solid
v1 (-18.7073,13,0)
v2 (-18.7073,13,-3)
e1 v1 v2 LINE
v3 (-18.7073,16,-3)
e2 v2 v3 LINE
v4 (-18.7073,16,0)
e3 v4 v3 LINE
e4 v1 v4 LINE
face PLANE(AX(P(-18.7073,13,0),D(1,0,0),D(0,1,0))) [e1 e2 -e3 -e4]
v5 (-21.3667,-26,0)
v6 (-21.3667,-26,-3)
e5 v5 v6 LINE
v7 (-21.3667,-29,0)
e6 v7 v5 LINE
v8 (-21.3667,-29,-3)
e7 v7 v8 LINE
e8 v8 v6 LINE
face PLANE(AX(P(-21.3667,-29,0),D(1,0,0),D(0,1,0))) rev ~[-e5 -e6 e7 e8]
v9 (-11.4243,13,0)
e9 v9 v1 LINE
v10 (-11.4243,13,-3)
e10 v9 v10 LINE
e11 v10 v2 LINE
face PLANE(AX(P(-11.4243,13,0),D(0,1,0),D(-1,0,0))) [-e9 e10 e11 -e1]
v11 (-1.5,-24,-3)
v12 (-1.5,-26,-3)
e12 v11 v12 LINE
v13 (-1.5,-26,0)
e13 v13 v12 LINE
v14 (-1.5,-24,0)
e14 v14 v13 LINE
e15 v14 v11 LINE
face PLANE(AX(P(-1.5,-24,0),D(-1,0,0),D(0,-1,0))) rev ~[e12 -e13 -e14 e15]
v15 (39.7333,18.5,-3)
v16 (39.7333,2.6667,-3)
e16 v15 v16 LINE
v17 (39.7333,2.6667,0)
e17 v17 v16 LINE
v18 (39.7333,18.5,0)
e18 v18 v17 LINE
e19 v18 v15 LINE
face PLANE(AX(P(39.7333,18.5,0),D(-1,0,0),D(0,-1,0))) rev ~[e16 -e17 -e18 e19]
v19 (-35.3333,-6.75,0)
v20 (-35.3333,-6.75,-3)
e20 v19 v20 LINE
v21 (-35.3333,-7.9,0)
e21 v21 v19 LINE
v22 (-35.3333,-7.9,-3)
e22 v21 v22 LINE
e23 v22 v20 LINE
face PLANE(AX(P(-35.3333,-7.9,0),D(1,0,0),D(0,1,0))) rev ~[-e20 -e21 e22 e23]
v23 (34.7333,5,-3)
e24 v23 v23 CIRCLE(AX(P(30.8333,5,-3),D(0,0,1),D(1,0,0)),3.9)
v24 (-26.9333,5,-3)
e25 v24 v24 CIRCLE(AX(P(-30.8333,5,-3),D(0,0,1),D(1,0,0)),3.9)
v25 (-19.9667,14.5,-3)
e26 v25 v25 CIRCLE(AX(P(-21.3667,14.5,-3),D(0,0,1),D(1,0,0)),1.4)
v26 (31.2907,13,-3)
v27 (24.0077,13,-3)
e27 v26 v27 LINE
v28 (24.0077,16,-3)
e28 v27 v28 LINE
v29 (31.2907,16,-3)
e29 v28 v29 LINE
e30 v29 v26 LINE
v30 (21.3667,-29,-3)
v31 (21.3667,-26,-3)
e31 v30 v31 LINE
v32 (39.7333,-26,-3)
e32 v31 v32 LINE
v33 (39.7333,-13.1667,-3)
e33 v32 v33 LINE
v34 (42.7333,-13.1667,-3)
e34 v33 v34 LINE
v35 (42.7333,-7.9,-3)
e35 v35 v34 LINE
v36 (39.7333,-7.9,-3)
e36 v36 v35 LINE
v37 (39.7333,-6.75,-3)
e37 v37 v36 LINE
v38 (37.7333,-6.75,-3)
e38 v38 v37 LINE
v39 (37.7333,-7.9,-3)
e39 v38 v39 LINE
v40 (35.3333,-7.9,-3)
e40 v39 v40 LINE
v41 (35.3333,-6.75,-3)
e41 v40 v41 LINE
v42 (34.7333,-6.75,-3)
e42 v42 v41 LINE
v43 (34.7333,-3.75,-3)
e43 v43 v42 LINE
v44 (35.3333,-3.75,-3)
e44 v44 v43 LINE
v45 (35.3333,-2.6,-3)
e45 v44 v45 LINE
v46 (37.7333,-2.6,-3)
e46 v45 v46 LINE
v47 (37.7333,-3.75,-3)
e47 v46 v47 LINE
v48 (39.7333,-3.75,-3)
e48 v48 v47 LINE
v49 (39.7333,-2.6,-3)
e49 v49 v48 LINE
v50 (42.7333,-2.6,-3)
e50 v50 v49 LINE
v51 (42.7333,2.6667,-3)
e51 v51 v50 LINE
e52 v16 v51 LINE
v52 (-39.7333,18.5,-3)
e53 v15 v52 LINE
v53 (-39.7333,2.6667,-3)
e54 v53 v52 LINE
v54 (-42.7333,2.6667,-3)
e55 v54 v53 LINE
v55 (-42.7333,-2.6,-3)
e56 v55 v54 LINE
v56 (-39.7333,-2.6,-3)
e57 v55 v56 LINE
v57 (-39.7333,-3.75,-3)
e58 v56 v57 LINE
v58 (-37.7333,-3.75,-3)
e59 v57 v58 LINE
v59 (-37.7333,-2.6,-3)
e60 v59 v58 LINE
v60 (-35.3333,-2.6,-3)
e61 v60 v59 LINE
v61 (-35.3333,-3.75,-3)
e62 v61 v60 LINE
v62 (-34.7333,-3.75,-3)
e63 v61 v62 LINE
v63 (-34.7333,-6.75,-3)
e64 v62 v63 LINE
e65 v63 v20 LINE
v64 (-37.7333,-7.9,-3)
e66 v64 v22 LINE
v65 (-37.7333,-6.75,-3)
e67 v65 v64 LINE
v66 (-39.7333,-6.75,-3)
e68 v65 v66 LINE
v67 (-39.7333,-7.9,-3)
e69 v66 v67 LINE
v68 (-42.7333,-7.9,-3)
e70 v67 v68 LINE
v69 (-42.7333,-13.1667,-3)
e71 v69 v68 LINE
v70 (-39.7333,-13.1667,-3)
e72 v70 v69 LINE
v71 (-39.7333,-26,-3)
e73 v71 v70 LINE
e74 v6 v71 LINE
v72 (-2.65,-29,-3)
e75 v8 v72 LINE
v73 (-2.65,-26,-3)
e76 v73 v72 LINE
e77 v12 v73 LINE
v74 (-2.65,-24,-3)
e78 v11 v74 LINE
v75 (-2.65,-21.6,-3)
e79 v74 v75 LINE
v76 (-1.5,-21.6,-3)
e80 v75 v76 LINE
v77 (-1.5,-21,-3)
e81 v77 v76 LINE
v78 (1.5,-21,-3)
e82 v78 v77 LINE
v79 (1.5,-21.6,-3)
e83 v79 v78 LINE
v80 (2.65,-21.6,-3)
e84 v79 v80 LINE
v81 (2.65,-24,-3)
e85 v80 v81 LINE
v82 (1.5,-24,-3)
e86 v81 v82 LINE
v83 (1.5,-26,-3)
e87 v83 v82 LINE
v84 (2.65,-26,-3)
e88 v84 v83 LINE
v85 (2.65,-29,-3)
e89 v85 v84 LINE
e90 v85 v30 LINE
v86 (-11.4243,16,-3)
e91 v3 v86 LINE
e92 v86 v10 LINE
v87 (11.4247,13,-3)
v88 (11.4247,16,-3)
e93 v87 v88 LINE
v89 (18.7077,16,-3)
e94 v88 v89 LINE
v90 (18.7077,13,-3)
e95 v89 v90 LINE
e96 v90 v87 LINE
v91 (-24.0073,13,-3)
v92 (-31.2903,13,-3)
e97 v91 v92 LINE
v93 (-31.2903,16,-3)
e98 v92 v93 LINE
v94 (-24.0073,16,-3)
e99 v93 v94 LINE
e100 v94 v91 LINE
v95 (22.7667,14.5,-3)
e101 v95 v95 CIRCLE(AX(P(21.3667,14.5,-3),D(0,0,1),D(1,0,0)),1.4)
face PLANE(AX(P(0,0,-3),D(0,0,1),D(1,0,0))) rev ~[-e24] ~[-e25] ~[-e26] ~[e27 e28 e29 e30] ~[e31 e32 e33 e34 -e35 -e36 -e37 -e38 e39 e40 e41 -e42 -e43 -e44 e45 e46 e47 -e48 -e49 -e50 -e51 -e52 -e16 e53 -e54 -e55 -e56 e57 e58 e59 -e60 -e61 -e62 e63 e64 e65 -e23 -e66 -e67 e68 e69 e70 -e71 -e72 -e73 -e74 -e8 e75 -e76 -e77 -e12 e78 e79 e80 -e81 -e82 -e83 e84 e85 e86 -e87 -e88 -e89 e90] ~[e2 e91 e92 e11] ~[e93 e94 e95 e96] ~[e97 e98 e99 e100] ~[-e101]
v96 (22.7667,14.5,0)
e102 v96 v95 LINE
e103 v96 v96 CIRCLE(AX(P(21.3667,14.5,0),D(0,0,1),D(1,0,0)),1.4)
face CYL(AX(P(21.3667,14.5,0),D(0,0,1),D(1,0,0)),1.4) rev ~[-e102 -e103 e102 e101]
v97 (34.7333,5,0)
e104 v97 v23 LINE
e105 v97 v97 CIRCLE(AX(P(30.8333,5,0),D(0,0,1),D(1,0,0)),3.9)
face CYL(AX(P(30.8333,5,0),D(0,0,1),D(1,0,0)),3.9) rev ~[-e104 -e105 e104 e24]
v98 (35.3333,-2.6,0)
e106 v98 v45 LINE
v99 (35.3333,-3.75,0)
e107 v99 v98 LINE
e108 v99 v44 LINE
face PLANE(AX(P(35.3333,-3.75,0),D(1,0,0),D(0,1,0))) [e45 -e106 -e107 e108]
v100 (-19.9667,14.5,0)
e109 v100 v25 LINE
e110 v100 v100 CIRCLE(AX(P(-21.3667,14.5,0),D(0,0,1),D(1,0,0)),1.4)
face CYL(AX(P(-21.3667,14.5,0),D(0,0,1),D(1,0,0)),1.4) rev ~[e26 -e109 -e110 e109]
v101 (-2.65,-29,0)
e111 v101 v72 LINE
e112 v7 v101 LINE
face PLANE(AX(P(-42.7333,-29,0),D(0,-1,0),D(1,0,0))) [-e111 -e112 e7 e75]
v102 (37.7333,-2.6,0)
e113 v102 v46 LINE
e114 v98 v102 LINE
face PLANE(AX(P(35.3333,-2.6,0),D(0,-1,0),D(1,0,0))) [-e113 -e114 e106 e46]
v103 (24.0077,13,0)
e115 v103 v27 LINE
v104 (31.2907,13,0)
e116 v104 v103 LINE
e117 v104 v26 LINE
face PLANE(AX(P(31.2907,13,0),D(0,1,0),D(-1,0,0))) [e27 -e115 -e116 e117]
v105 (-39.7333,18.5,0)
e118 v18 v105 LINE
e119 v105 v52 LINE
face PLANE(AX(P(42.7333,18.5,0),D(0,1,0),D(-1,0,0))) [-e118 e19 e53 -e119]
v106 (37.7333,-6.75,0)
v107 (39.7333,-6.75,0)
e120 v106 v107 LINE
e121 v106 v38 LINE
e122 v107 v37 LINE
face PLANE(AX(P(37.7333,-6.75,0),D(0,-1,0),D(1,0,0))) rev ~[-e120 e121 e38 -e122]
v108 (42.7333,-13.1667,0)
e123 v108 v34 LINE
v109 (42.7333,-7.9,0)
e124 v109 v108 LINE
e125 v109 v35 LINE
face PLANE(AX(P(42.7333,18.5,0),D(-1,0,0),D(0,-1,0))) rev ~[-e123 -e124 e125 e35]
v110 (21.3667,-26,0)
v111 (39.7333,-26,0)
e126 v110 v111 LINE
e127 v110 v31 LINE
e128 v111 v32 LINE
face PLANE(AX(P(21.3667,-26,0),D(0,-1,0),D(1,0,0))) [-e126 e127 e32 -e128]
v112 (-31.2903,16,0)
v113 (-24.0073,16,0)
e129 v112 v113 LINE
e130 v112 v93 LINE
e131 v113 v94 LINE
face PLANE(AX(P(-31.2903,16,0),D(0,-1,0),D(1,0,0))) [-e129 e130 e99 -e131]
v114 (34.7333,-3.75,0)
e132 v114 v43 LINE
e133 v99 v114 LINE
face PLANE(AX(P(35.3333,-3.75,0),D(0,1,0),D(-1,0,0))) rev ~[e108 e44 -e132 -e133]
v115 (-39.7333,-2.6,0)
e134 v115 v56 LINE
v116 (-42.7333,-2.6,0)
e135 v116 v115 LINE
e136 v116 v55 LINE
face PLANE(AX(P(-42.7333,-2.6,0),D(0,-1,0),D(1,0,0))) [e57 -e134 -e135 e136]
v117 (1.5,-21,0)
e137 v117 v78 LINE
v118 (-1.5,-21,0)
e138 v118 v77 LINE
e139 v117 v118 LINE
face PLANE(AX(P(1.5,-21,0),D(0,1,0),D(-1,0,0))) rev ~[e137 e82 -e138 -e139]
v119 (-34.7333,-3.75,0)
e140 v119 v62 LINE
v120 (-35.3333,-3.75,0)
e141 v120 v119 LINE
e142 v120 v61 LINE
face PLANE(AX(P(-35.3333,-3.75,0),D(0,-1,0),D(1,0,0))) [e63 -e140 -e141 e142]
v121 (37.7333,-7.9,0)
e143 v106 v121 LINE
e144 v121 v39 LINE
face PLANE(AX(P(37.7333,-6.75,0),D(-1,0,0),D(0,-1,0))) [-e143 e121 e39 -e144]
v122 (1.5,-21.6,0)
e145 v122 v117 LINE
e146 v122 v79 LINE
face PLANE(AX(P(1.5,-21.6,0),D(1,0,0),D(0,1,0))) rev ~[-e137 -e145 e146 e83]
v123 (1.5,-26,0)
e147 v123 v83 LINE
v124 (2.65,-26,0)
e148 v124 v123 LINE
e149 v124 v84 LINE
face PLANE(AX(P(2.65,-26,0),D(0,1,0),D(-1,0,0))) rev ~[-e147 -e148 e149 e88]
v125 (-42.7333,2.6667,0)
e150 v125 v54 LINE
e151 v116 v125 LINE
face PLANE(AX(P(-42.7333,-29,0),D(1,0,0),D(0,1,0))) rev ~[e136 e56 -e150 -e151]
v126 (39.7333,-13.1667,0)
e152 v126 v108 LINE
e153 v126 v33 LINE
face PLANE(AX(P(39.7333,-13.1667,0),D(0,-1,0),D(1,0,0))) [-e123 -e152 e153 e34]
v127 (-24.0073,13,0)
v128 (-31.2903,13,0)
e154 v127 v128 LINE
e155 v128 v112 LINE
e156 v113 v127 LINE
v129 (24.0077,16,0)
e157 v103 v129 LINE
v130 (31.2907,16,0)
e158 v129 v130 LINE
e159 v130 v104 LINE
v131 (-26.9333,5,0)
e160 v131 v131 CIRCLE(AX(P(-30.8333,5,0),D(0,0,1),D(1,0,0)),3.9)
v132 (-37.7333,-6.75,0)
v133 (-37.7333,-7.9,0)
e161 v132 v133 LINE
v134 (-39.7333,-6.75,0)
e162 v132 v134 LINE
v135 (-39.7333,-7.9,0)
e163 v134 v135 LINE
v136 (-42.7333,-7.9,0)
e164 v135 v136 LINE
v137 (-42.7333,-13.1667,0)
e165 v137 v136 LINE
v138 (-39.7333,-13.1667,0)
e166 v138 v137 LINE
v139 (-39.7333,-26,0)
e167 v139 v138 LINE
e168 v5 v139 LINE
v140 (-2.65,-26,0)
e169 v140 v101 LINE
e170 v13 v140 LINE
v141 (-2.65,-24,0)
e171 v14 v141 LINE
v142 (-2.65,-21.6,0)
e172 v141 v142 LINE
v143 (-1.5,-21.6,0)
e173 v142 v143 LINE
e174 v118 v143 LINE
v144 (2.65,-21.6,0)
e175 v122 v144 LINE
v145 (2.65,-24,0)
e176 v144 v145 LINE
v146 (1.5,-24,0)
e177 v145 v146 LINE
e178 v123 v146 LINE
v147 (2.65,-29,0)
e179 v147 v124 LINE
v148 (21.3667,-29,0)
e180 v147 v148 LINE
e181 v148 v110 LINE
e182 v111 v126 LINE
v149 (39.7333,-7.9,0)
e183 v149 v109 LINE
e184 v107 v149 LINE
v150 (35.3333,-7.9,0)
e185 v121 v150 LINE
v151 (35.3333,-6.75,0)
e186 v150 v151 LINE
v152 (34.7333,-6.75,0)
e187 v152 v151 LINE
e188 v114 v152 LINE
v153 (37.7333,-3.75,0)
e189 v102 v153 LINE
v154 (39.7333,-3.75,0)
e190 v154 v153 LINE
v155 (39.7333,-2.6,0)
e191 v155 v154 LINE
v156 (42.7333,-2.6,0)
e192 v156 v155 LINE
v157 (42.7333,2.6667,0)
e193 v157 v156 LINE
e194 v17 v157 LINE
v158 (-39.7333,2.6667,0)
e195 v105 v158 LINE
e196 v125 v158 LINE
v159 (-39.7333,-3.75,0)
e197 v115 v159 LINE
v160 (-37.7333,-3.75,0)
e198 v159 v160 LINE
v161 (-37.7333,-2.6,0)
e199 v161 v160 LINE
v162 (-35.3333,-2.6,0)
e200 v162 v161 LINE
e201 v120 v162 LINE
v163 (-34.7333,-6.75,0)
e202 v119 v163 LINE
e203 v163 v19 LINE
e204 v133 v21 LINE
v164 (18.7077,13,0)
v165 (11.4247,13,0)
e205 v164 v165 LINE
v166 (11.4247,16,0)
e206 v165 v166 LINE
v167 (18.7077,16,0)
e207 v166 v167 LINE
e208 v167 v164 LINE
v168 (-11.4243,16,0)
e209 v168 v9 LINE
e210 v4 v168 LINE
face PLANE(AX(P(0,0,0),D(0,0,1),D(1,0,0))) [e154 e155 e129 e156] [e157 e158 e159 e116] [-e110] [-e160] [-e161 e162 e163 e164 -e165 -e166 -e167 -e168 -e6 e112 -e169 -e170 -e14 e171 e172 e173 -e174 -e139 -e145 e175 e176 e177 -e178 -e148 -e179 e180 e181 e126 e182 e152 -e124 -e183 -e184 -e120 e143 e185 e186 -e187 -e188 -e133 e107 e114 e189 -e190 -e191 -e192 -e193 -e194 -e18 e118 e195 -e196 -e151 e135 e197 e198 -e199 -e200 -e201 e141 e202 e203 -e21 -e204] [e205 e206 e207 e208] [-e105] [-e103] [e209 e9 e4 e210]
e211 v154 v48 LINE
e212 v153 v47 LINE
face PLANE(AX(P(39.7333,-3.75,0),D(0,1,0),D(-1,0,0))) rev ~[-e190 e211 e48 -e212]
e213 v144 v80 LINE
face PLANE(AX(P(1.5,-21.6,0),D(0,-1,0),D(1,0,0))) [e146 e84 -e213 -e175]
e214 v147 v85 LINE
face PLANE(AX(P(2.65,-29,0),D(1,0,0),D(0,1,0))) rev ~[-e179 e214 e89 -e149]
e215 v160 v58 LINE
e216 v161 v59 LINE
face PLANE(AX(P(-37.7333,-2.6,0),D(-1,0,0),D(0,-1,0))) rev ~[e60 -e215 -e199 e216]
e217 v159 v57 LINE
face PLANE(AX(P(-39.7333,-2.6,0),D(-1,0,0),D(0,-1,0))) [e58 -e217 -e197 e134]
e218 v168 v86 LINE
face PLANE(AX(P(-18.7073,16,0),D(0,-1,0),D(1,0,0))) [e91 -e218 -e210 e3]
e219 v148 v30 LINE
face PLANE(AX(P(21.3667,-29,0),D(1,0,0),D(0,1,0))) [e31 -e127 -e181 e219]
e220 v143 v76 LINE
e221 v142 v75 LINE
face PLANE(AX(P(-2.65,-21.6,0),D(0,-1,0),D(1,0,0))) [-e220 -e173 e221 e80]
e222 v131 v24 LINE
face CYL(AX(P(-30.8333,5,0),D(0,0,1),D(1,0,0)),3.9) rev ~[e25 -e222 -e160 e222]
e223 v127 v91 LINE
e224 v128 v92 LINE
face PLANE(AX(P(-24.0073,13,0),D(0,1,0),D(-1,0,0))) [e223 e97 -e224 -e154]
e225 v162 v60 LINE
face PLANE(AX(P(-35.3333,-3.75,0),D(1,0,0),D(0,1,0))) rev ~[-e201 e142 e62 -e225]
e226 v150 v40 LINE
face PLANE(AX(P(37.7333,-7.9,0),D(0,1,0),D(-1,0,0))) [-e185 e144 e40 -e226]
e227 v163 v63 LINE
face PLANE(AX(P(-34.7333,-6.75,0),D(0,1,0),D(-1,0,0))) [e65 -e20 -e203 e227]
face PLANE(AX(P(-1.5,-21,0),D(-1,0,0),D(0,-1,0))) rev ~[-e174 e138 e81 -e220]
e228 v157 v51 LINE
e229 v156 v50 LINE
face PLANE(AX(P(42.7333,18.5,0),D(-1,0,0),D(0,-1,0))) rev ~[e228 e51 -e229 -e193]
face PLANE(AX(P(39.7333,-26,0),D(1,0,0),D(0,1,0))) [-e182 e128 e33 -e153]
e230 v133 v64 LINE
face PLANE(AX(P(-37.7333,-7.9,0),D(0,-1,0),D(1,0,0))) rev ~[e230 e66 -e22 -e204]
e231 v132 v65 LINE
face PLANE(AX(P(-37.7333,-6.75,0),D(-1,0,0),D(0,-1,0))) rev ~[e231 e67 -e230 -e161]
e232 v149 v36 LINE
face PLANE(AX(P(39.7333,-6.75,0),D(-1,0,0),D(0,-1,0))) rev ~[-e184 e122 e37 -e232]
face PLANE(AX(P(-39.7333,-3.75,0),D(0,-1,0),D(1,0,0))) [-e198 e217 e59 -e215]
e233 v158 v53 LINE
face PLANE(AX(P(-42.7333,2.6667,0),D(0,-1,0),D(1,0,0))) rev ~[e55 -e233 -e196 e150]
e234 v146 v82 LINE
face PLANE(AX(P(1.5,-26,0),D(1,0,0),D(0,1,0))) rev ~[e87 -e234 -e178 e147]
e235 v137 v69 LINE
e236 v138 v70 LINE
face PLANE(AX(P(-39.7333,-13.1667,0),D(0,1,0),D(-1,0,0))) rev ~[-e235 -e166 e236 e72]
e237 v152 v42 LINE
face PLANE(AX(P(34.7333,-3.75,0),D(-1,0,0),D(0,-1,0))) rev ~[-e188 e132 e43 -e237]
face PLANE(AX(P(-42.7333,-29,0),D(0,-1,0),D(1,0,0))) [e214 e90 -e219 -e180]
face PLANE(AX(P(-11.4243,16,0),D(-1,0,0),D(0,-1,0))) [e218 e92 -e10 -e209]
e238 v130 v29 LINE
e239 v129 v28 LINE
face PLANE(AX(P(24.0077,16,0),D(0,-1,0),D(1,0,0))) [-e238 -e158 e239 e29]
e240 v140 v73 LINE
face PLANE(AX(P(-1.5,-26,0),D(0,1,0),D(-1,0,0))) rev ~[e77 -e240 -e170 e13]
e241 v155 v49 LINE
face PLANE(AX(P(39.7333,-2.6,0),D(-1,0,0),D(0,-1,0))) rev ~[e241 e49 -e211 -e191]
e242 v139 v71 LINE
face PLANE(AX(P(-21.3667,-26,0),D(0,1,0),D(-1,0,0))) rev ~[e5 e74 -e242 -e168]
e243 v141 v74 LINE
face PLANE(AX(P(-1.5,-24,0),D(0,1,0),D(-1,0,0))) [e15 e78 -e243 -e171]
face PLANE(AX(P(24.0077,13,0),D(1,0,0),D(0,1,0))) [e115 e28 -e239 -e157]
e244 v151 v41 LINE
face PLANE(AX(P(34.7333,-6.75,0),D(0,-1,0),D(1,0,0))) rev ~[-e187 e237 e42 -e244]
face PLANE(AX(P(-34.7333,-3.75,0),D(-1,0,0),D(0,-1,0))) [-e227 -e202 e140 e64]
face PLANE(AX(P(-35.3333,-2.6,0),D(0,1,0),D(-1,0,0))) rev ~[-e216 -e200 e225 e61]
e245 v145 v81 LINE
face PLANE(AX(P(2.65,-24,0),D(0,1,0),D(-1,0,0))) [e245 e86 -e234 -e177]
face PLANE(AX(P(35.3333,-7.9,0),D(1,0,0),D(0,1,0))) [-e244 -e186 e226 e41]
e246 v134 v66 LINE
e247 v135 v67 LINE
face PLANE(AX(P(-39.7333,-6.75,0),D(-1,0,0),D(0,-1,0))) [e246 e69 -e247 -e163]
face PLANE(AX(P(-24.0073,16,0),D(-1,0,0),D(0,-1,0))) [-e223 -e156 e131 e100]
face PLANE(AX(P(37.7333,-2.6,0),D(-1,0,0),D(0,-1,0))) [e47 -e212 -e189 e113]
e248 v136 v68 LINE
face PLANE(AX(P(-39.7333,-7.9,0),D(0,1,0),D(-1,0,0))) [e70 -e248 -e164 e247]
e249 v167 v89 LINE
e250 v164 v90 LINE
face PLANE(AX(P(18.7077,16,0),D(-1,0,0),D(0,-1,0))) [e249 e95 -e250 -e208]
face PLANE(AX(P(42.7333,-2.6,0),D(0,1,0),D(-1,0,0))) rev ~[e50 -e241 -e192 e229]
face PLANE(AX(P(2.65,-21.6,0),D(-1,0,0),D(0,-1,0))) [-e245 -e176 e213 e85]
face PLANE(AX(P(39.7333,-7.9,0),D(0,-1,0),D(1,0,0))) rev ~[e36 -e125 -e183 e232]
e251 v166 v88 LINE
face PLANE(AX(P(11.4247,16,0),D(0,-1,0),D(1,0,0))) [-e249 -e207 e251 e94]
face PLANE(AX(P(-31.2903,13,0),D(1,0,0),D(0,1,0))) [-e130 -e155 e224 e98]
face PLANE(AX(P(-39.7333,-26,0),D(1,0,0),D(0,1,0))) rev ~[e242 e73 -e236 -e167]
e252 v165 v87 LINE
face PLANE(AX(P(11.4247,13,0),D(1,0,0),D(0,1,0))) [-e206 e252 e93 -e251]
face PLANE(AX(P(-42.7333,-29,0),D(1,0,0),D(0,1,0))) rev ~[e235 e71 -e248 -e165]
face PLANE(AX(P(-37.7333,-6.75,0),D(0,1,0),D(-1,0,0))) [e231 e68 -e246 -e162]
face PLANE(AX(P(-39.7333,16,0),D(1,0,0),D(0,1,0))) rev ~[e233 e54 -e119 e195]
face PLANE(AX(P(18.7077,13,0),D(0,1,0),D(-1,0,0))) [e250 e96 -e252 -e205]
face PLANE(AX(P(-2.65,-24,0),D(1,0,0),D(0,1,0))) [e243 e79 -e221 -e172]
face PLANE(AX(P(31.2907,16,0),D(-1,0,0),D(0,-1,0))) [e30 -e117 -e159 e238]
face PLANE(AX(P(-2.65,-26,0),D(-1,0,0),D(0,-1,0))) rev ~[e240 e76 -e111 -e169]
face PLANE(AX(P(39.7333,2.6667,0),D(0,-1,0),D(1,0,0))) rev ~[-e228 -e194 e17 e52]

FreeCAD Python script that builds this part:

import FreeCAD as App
import Part
import Sketcher

doc = App.newDocument("Part")
body = doc.addObject("PartDesign::Body", "Body")

# Sketch on XY plane
sketch1 = body.newObject("Sketcher::SketchObject", "Sketch")
sketch1.AttachmentSupport = (doc.getObject("XY_Plane"), [""])
sketch1.MapMode = "FlatFace"
sketch1.addGeometry([
    Part.LineSegment(App.Vector(42.7, -29, 0), App.Vector(42.7, 18.5, 0)),  # 0
    Part.LineSegment(App.Vector(42.7, 18.5, 0), App.Vector(-42.7, 18.5, 0)),  # 1
    Part.LineSegment(App.Vector(-42.7, 18.5, 0), App.Vector(-42.7, -29, 0)),  # 2
    Part.LineSegment(App.Vector(-42.7, -29, 0), App.Vector(42.7, -29, 0)),  # 3
    Part.Circle(App.Vector(-30.8, 5, 0), App.Vector(0, 0, 1), 3.9),  # 4
    Part.Circle(App.Vector(30.8, 5, 0), App.Vector(0, 0, 1), 3.9),  # 5
], False)
sketch1.addConstraint([
    Sketcher.Constraint("Coincident", 0, 2, 1, 1),
    Sketcher.Constraint("Coincident", 1, 2, 2, 1),
    Sketcher.Constraint("Coincident", 2, 2, 3, 1),
    Sketcher.Constraint("Coincident", 3, 2, 0, 1),
    Sketcher.Constraint("Vertical", 0),
    Sketcher.Constraint("Horizontal", 1),
    Sketcher.Constraint("Vertical", 2),
    Sketcher.Constraint("Horizontal", 3),
    Sketcher.Constraint("Equal", 4, 5),
    Sketcher.Constraint("Symmetric", 4, 3, 5, 3, -2),
    Sketcher.Constraint("Diameter", 4, 7.8),
    Sketcher.Constraint("DistanceY", 0, 1, 0, 2, 47.5),
    Sketcher.Constraint("DistanceY", 2, 2, 4, 3, 34.0),
    Sketcher.Constraint("DistanceX", 1, 2, 1, 1, 85.4666),
    Sketcher.Constraint("DistanceY", -1, 1, 4, 3, 5.0),
    Sketcher.Constraint("DistanceX", 4, 3, -1, 1, 30.8333),
    Sketcher.Constraint("DistanceX", 5, 3, 0, 2, 11.9),
])
pad1 = body.newObject("PartDesign::Pad", "Pad")
pad1.Profile = sketch1
pad1.Length = 3
pad1.Reversed = True

# Sketch on XY plane
sketch2 = body.newObject("Sketcher::SketchObject", "Sketch001")
sketch2.AttachmentSupport = (doc.getObject("XY_Plane"), [""])
sketch2.MapMode = "FlatFace"
sketch2.addGeometry([
    Part.LineSegment(App.Vector(42.7, 18.5, 0), App.Vector(39.7, 18.5, 0)),  # 0
    Part.LineSegment(App.Vector(39.7, 18.5, 0), App.Vector(39.7, 2.7, 0)),  # 1
    Part.LineSegment(App.Vector(39.7, 2.7, 0), App.Vector(42.7, 2.7, 0)),  # 2
    Part.LineSegment(App.Vector(42.7, 2.7, 0), App.Vector(42.7, 18.5, 0)),  # 3
    Part.LineSegment(App.Vector(-39.7, 18.5, 0), App.Vector(-42.7, 18.5, 0)),  # 4
    Part.LineSegment(App.Vector(-42.7, 18.5, 0), App.Vector(-42.7, 2.7, 0)),  # 5
    Part.LineSegment(App.Vector(-42.7, 2.7, 0), App.Vector(-39.7, 2.7, 0)),  # 6
    Part.LineSegment(App.Vector(-39.7, 2.7, 0), App.Vector(-39.7, 18.5, 0)),  # 7
    Part.LineSegment(App.Vector(31.3, 13, 0), App.Vector(31.3, 16, 0)),  # 8
    Part.LineSegment(App.Vector(31.3, 16, 0), App.Vector(24, 16, 0)),  # 9
    Part.LineSegment(App.Vector(24, 16, 0), App.Vector(24, 13, 0)),  # 10
    Part.LineSegment(App.Vector(24, 13, 0), App.Vector(31.3, 13, 0)),  # 11
    Part.LineSegment(App.Vector(-24, 16, 0), App.Vector(-31.3, 16, 0)),  # 12
    Part.LineSegment(App.Vector(-31.3, 16, 0), App.Vector(-31.3, 13, 0)),  # 13
    Part.LineSegment(App.Vector(-31.3, 13, 0), App.Vector(-24, 13, 0)),  # 14
    Part.LineSegment(App.Vector(-24, 13, 0), App.Vector(-24, 16, 0)),  # 15
    Part.LineSegment(App.Vector(42.7, -2.6, 0), App.Vector(39.7, -2.6, 0)),  # 16
    Part.LineSegment(App.Vector(39.7, -2.6, 0), App.Vector(39.7, -3.8, 0)),  # 17
    Part.LineSegment(App.Vector(39.7, -3.8, 0), App.Vector(37.7, -3.8, 0)),  # 18
    Part.LineSegment(App.Vector(37.7, -3.8, 0), App.Vector(37.7, -2.6, 0)),  # 19
    Part.LineSegment(App.Vector(37.7, -2.6, 0), App.Vector(35.3, -2.6, 0)),  # 20
    Part.LineSegment(App.Vector(35.3, -2.6, 0), App.Vector(35.3, -3.8, 0)),  # 21
    Part.LineSegment(App.Vector(35.3, -3.8, 0), App.Vector(34.7, -3.8, 0)),  # 22
    Part.LineSegment(App.Vector(34.7, -3.8, 0), App.Vector(34.7, -6.8, 0)),  # 23
    Part.LineSegment(App.Vector(34.7, -6.8, 0), App.Vector(35.3, -6.8, 0)),  # 24
    Part.LineSegment(App.Vector(35.3, -6.8, 0), App.Vector(35.3, -7.9, 0)),  # 25
    Part.LineSegment(App.Vector(35.3, -7.9, 0), App.Vector(37.7, -7.9, 0)),  # 26
    Part.LineSegment(App.Vector(37.7, -7.9, 0), App.Vector(37.7, -6.8, 0)),  # 27
    Part.LineSegment(App.Vector(37.7, -6.8, 0), App.Vector(39.7, -6.8, 0)),  # 28
    Part.LineSegment(App.Vector(39.7, -6.8, 0), App.Vector(39.7, -7.9, 0)),  # 29
    Part.LineSegment(App.Vector(39.7, -7.9, 0), App.Vector(42.7, -7.9, 0)),  # 30
    Part.LineSegment(App.Vector(42.7, -7.9, 0), App.Vector(42.7, -2.6, 0)),  # 31
    Part.LineSegment(App.Vector(-39.7, -2.6, 0), App.Vector(-42.7, -2.6, 0)),  # 32
    Part.LineSegment(App.Vector(-42.7, -2.6, 0), App.Vector(-42.7, -7.9, 0)),  # 33
    Part.LineSegment(App.Vector(-42.7, -7.9, 0), App.Vector(-39.7, -7.9, 0)),  # 34
    Part.LineSegment(App.Vector(-39.7, -7.9, 0), App.Vector(-39.7, -6.8, 0)),  # 35
    Part.LineSegment(App.Vector(-39.7, -6.8, 0), App.Vector(-37.7, -6.8, 0)),  # 36
    Part.LineSegment(App.Vector(-37.7, -6.8, 0), App.Vector(-37.7, -7.9, 0)),  # 37
    Part.LineSegment(App.Vector(-37.7, -7.9, 0), App.Vector(-35.3, -7.9, 0)),  # 38
    Part.LineSegment(App.Vector(-35.3, -7.9, 0), App.Vector(-35.3, -6.8, 0)),  # 39
    Part.LineSegment(App.Vector(-35.3, -6.8, 0), App.Vector(-34.7, -6.8, 0)),  # 40
    Part.LineSegment(App.Vector(-34.7, -6.8, 0), App.Vector(-34.7, -3.8, 0)),  # 41
    Part.LineSegment(App.Vector(-34.7, -3.8, 0), App.Vector(-35.3, -3.8, 0)),  # 42
    Part.LineSegment(App.Vector(-35.3, -3.8, 0), App.Vector(-35.3, -2.6, 0)),  # 43
    Part.LineSegment(App.Vector(-35.3, -2.6, 0), App.Vector(-37.7, -2.6, 0)),  # 44
    Part.LineSegment(App.Vector(-37.7, -2.6, 0), App.Vector(-37.7, -3.8, 0)),  # 45
    Part.LineSegment(App.Vector(-37.7, -3.8, 0), App.Vector(-39.7, -3.8, 0)),  # 46
    Part.LineSegment(App.Vector(-39.7, -3.8, 0), App.Vector(-39.7, -2.6, 0)),  # 47
    Part.LineSegment(App.Vector(42.7, -29, 0), App.Vector(42.7, -13.2, 0)),  # 48
    Part.LineSegment(App.Vector(42.7, -13.2, 0), App.Vector(39.7, -13.2, 0)),  # 49
    Part.LineSegment(App.Vector(39.7, -13.2, 0), App.Vector(39.7, -26, 0)),  # 50
    Part.LineSegment(App.Vector(39.7, -26, 0), App.Vector(21.4, -26, 0)),  # 51
    Part.LineSegment(App.Vector(21.4, -26, 0), App.Vector(21.4, -29, 0)),  # 52
    Part.LineSegment(App.Vector(21.4, -29, 0), App.Vector(42.7, -29, 0)),  # 53
    Part.LineSegment(App.Vector(-39.7, -13.2, 0), App.Vector(-42.7, -13.2, 0)),  # 54
    Part.LineSegment(App.Vector(-42.7, -13.2, 0), App.Vector(-42.7, -29, 0)),  # 55
    Part.LineSegment(App.Vector(-42.7, -29, 0), App.Vector(-21.4, -29, 0)),  # 56
    Part.LineSegment(App.Vector(-21.4, -29, 0), App.Vector(-21.4, -26, 0)),  # 57
    Part.LineSegment(App.Vector(-21.4, -26, 0), App.Vector(-39.7, -26, 0)),  # 58
    Part.LineSegment(App.Vector(-39.7, -26, 0), App.Vector(-39.7, -13.2, 0)),  # 59
    Part.LineSegment(App.Vector(2.6, -29, 0), App.Vector(2.6, -26, 0)),  # 60
    Part.LineSegment(App.Vector(2.6, -26, 0), App.Vector(1.5, -26, 0)),  # 61
    Part.LineSegment(App.Vector(1.5, -26, 0), App.Vector(1.5, -24, 0)),  # 62
    Part.LineSegment(App.Vector(1.5, -24, 0), App.Vector(2.6, -24, 0)),  # 63
    Part.LineSegment(App.Vector(2.6, -24, 0), App.Vector(2.6, -21.6, 0)),  # 64
    Part.LineSegment(App.Vector(2.6, -21.6, 0), App.Vector(1.5, -21.6, 0)),  # 65
    Part.LineSegment(App.Vector(1.5, -21.6, 0), App.Vector(1.5, -21, 0)),  # 66
    Part.LineSegment(App.Vector(1.5, -21, 0), App.Vector(-1.5, -21, 0)),  # 67
    Part.LineSegment(App.Vector(-1.5, -21, 0), App.Vector(-1.5, -21.6, 0)),  # 68
    Part.LineSegment(App.Vector(-1.5, -21.6, 0), App.Vector(-2.6, -21.6, 0)),  # 69
    Part.LineSegment(App.Vector(-2.6, -21.6, 0), App.Vector(-2.6, -24, 0)),  # 70
    Part.LineSegment(App.Vector(-2.6, -24, 0), App.Vector(-1.5, -24, 0)),  # 71
    Part.LineSegment(App.Vector(-1.5, -24, 0), App.Vector(-1.5, -26, 0)),  # 72
    Part.LineSegment(App.Vector(-1.5, -26, 0), App.Vector(-2.6, -26, 0)),  # 73
    Part.LineSegment(App.Vector(-2.6, -26, 0), App.Vector(-2.6, -29, 0)),  # 74
    Part.LineSegment(App.Vector(-2.6, -29, 0), App.Vector(2.6, -29, 0)),  # 75
    Part.Circle(App.Vector(21.4, 14.5, 0), App.Vector(0, 0, 1), 1.4),  # 76
    Part.Circle(App.Vector(-21.4, 14.5, 0), App.Vector(0, 0, 1), 1.4),  # 77
    Part.LineSegment(App.Vector(18.7, 13, 0), App.Vector(18.7, 16, 0)),  # 78
    Part.LineSegment(App.Vector(18.7, 16, 0), App.Vector(11.4, 16, 0)),  # 79
    Part.LineSegment(App.Vector(11.4, 16, 0), App.Vector(11.4, 13, 0)),  # 80
    Part.LineSegment(App.Vector(11.4, 13, 0), App.Vector(18.7, 13, 0)),  # 81
    Part.LineSegment(App.Vector(-11.4, 13, 0), App.Vector(-11.4, 16, 0)),  # 82
    Part.LineSegment(App.Vector(-11.4, 16, 0), App.Vector(-18.7, 16, 0)),  # 83
    Part.LineSegment(App.Vector(-18.7, 16, 0), App.Vector(-18.7, 13, 0)),  # 84
    Part.LineSegment(App.Vector(-18.7, 13, 0), App.Vector(-11.4, 13, 0)),  # 85
], False)
sketch2.addConstraint([
    Sketcher.Constraint("Coincident", 0, 2, 1, 1),
    Sketcher.Constraint("Coincident", 1, 2, 2, 1),
    Sketcher.Constraint("Coincident", 2, 2, 3, 1),
    Sketcher.Constraint("Coincident", 3, 2, 0, 1),
    Sketcher.Constraint("Coincident", 4, 2, 5, 1),
    Sketcher.Constraint("Coincident", 5, 2, 6, 1),
    Sketcher.Constraint("Coincident", 6, 2, 7, 1),
    Sketcher.Constraint("Coincident", 7, 2, 4, 1),
    Sketcher.Constraint("Coincident", 8, 2, 9, 1),
    Sketcher.Constraint("Coincident", 9, 2, 10, 1),
    Sketcher.Constraint("Coincident", 10, 2, 11, 1),
    Sketcher.Constraint("Coincident", 11, 2, 8, 1),
    Sketcher.Constraint("Coincident", 12, 2, 13, 1),
    Sketcher.Constraint("Coincident", 13, 2, 14, 1),
    Sketcher.Constraint("Coincident", 14, 2, 15, 1),
    Sketcher.Constraint("Coincident", 15, 2, 12, 1),
    Sketcher.Constraint("Coincident", 16, 2, 17, 1),
    Sketcher.Constraint("Coincident", 17, 2, 18, 1),
    Sketcher.Constraint("Coincident", 18, 2, 19, 1),
    Sketcher.Constraint("Coincident", 19, 2, 20, 1),
    Sketcher.Constraint("Coincident", 20, 2, 21, 1),
    Sketcher.Constraint("Coincident", 21, 2, 22, 1),
    Sketcher.Constraint("Coincident", 22, 2, 23, 1),
    Sketcher.Constraint("Coincident", 23, 2, 24, 1),
    Sketcher.Constraint("Coincident", 24, 2, 25, 1),
    Sketcher.Constraint("Coincident", 25, 2, 26, 1),
    Sketcher.Constraint("Coincident", 26, 2, 27, 1),
    Sketcher.Constraint("Coincident", 27, 2, 28, 1),
    Sketcher.Constraint("Coincident", 28, 2, 29, 1),
    Sketcher.Constraint("Coincident", 29, 2, 30, 1),
    Sketcher.Constraint("Coincident", 30, 2, 31, 1),
    Sketcher.Constraint("Coincident", 31, 2, 16, 1),
    Sketcher.Constraint("Coincident", 32, 2, 33, 1),
    Sketcher.Constraint("Coincident", 33, 2, 34, 1),
    Sketcher.Constraint("Coincident", 34, 2, 35, 1),
    Sketcher.Constraint("Coincident", 35, 2, 36, 1),
    Sketcher.Constraint("Coincident", 36, 2, 37, 1),
    Sketcher.Constraint("Coincident", 37, 2, 38, 1),
    Sketcher.Constraint("Coincident", 38, 2, 39, 1),
    Sketcher.Constraint("Coincident", 39, 2, 40, 1),
    Sketcher.Constraint("Coincident", 40, 2, 41, 1),
    Sketcher.Constraint("Coincident", 41, 2, 42, 1),
    Sketcher.Constraint("Coincident", 42, 2, 43, 1),
    Sketcher.Constraint("Coincident", 43, 2, 44, 1),
    Sketcher.Constraint("Coincident", 44, 2, 45, 1),
    Sketcher.Constraint("Coincident", 45, 2, 46, 1),
    Sketcher.Constraint("Coincident", 46, 2, 47, 1),
    Sketcher.Constraint("Coincident", 47, 2, 32, 1),
    Sketcher.Constraint("Coincident", 48, 2, 49, 1),
    Sketcher.Constraint("Coincident", 49, 2, 50, 1),
    Sketcher.Constraint("Coincident", 50, 2, 51, 1),
    Sketcher.Constraint("Coincident", 51, 2, 52, 1),
    Sketcher.Constraint("Coincident", 52, 2, 53, 1),
    Sketcher.Constraint("Coincident", 53, 2, 48, 1),
    Sketcher.Constraint("Coincident", 54, 2, 55, 1),
    Sketcher.Constraint("Coincident", 55, 2, 56, 1),
    Sketcher.Constraint("Coincident", 56, 2, 57, 1),
    Sketcher.Constraint("Coincident", 57, 2, 58, 1),
    Sketcher.Constraint("Coincident", 58, 2, 59, 1),
    Sketcher.Constraint("Coincident", 59, 2, 54, 1),
    Sketcher.Constraint("Coincident", 60, 2, 61, 1),
    Sketcher.Constraint("Coincident", 61, 2, 62, 1),
    Sketcher.Constraint("Coincident", 62, 2, 63, 1),
    Sketcher.Constraint("Coincident", 63, 2, 64, 1),
    Sketcher.Constraint("Coincident", 64, 2, 65, 1),
    Sketcher.Constraint("Coincident", 65, 2, 66, 1),
    Sketcher.Constraint("Coincident", 66, 2, 67, 1),
    Sketcher.Constraint("Coincident", 67, 2, 68, 1),
    Sketcher.Constraint("Coincident", 68, 2, 69, 1),
    Sketcher.Constraint("Coincident", 69, 2, 70, 1),
    Sketcher.Constraint("Coincident", 70, 2, 71, 1),
    Sketcher.Constraint("Coincident", 71, 2, 72, 1),
    Sketcher.Constraint("Coincident", 72, 2, 73, 1),
    Sketcher.Constraint("Coincident", 73, 2, 74, 1),
    Sketcher.Constraint("Coincident", 74, 2, 75, 1),
    Sketcher.Constraint("Coincident", 75, 2, 60, 1),
    Sketcher.Constraint("Coincident", 78, 2, 79, 1),
    Sketcher.Constraint("Coincident", 79, 2, 80, 1),
    Sketcher.Constraint("Coincident", 80, 2, 81, 1),
    Sketcher.Constraint("Coincident", 81, 2, 78, 1),
    Sketcher.Constraint("Coincident", 82, 2, 83, 1),
    Sketcher.Constraint("Coincident", 83, 2, 84, 1),
    Sketcher.Constraint("Coincident", 84, 2, 85, 1),
    Sketcher.Constraint("Coincident", 85, 2, 82, 1),
    Sketcher.Constraint("Horizontal", 0),
    Sketcher.Constraint("Vertical", 1),
    Sketcher.Constraint("Horizontal", 2),
    Sketcher.Constraint("Vertical", 3),
    Sketcher.Constraint("Horizontal", 4),
    Sketcher.Constraint("Vertical", 5),
    Sketcher.Constraint("Horizontal", 6),
    Sketcher.Constraint("Vertical", 7),
    Sketcher.Constraint("Vertical", 8),
    Sketcher.Constraint("Horizontal", 9),
    Sketcher.Constraint("Vertical", 10),
    Sketcher.Constraint("Horizontal", 11),
    Sketcher.Constraint("Horizontal", 12),
    Sketcher.Constraint("Vertical", 13),
    Sketcher.Constraint("Horizontal", 14),
    Sketcher.Constraint("Vertical", 15),
    Sketcher.Constraint("Horizontal", 16),
    Sketcher.Constraint("Vertical", 17),
    Sketcher.Constraint("Horizontal", 18),
    Sketcher.Constraint("Vertical", 19),
    Sketcher.Constraint("Horizontal", 20),
    Sketcher.Constraint("Vertical", 21),
    Sketcher.Constraint("Horizontal", 22),
    Sketcher.Constraint("Vertical", 23),
    Sketcher.Constraint("Horizontal", 24),
    Sketcher.Constraint("Vertical", 25),
    Sketcher.Constraint("Horizontal", 26),
    Sketcher.Constraint("Vertical", 27),
    Sketcher.Constraint("Horizontal", 28),
    Sketcher.Constraint("Vertical", 29),
    Sketcher.Constraint("Horizontal", 30),
    Sketcher.Constraint("Vertical", 31),
    Sketcher.Constraint("Horizontal", 32),
    Sketcher.Constraint("Vertical", 33),
    Sketcher.Constraint("Horizontal", 34),
    Sketcher.Constraint("Vertical", 35),
    Sketcher.Constraint("Horizontal", 36),
    Sketcher.Constraint("Vertical", 37),
    Sketcher.Constraint("Horizontal", 38),
    Sketcher.Constraint("Vertical", 39),
    Sketcher.Constraint("Horizontal", 40),
    Sketcher.Constraint("Vertical", 41),
    Sketcher.Constraint("Horizontal", 42),
    Sketcher.Constraint("Vertical", 43),
    Sketcher.Constraint("Horizontal", 44),
    Sketcher.Constraint("Vertical", 45),
    Sketcher.Constraint("Horizontal", 46),
    Sketcher.Constraint("Vertical", 47),
    Sketcher.Constraint("Vertical", 48),
    Sketcher.Constraint("Horizontal", 49),
    Sketcher.Constraint("Vertical", 50),
    Sketcher.Constraint("Horizontal", 51),
    Sketcher.Constraint("Vertical", 52),
    Sketcher.Constraint("Horizontal", 53),
    Sketcher.Constraint("Horizontal", 54),
    Sketcher.Constraint("Vertical", 55),
    Sketcher.Constraint("Horizontal", 56),
    Sketcher.Constraint("Vertical", 57),
    Sketcher.Constraint("Horizontal", 58),
    Sketcher.Constraint("Vertical", 59),
    Sketcher.Constraint("Vertical", 60),
    Sketcher.Constraint("Horizontal", 61),
    Sketcher.Constraint("Vertical", 62),
    Sketcher.Constraint("Horizontal", 63),
    Sketcher.Constraint("Vertical", 64),
    Sketcher.Constraint("Horizontal", 65),
    Sketcher.Constraint("Vertical", 66),
    Sketcher.Constraint("Horizontal", 67),
    Sketcher.Constraint("Vertical", 68),
    Sketcher.Constraint("Horizontal", 69),
    Sketcher.Constraint("Vertical", 70),
    Sketcher.Constraint("Horizontal", 71),
    Sketcher.Constraint("Vertical", 72),
    Sketcher.Constraint("Horizontal", 73),
    Sketcher.Constraint("Vertical", 74),
    Sketcher.Constraint("Horizontal", 75),
    Sketcher.Constraint("Vertical", 78),
    Sketcher.Constraint("Horizontal", 79),
    Sketcher.Constraint("Vertical", 80),
    Sketcher.Constraint("Horizontal", 81),
    Sketcher.Constraint("Vertical", 82),
    Sketcher.Constraint("Horizontal", 83),
    Sketcher.Constraint("Vertical", 84),
    Sketcher.Constraint("Horizontal", 85),
    Sketcher.Constraint("Equal", 76, 77),
    Sketcher.Constraint("Symmetric", 76, 3, 77, 3, -2),
    Sketcher.Constraint("Symmetric", 3, 2, 4, 2, -2),
    Sketcher.Constraint("Symmetric", 1, 2, 6, 2, -2),
    Sketcher.Constraint("Symmetric", 10, 2, 14, 2, -2),
    Sketcher.Constraint("Symmetric", 31, 2, 32, 2, -2),
    Sketcher.Constraint("Symmetric", 29, 2, 34, 2, -2),
    Sketcher.Constraint("Symmetric", 27, 2, 36, 2, -2),
    Sketcher.Constraint("Symmetric", 25, 2, 38, 2, -2),
    Sketcher.Constraint("Symmetric", 23, 2, 40, 2, -2),
    Sketcher.Constraint("Symmetric", 21, 2, 42, 2, -2),
    Sketcher.Constraint("Symmetric", 19, 2, 44, 2, -2),
    Sketcher.Constraint("Symmetric", 17, 2, 46, 2, -2),
    Sketcher.Constraint("Symmetric", 48, 2, 54, 2, -2),
    Sketcher.Constraint("Symmetric", 52, 2, 56, 2, -2),
    Sketcher.Constraint("Symmetric", 50, 2, 58, 2, -2),
    Sketcher.Constraint("Symmetric", 65, 2, 68, 2, -2),
    Sketcher.Constraint("Symmetric", 63, 2, 70, 2, -2),
    Sketcher.Constraint("Symmetric", 61, 2, 72, 2, -2),
    Sketcher.Constraint("Symmetric", 79, 2, 82, 2, -2),
    Sketcher.Constraint("Symmetric", 81, 2, 84, 2, -2),
    Sketcher.Constraint("Horizontal", 9, 2, 12, 2),
    Sketcher.Constraint("Horizontal", 16, 2, 19, 2),
    Sketcher.Constraint("Horizontal", 18, 2, 21, 2),
    Sketcher.Constraint("Horizontal", 24, 2, 27, 2),
    Sketcher.Constraint("Horizontal", 26, 2, 29, 2),
    Sketcher.Constraint("Horizontal", 58, 2, 60, 2),
    Sketcher.Constraint("Horizontal", 56, 2, 74, 2),
    Sketcher.Constraint("Horizontal", 15, 2, 78, 2),
    Sketcher.Constraint("Horizontal", 14, 2, 80, 2),
    Sketcher.Constraint("Vertical", 1, 2, 16, 2),
    Sketcher.Constraint("Vertical", 21, 2, 24, 2),
    Sketcher.Constraint("Vertical", 19, 2, 26, 2),
    Sketcher.Constraint("Vertical", 17, 2, 28, 2),
    Sketcher.Constraint("Vertical", 3, 2, 30, 2),
    Sketcher.Constraint("Vertical", 31, 2, 48, 2),
    Sketcher.Constraint("Vertical", 29, 2, 49, 2),
    Sketcher.Constraint("Vertical", 76, 3, 51, 2),
    Sketcher.Constraint("Vertical", 60, 2, 63, 2),
    Sketcher.Constraint("Vertical", 62, 2, 65, 2),
    Sketcher.Constraint("Vertical", 70, 2, 73, 2),
    Sketcher.Constraint("Equal", 11, 12),
    Sketcher.Constraint("Equal", 54, 67),
    Sketcher.Constraint("Equal", 14, 79),
    Sketcher.Constraint("Equal", 67, 8),
    Sketcher.Constraint("Equal", 73, 17),
    Sketcher.Constraint("Equal", 15, 23),
    Sketcher.Constraint("Equal", 21, 25),
    Sketcher.Constraint("Equal", 7, 48),
    Sketcher.Constraint("Equal", 41, 52),
    Sketcher.Constraint("Equal", 46, 62),
    Sketcher.Constraint("Equal", 44, 64),
    Sketcher.Constraint("Equal", 42, 66),
    Sketcher.Constraint("Diameter", 76, 2.8),
    Sketcher.Constraint("DistanceX", 0, 2, 0, 1, 3.0),
    Sketcher.Constraint("DistanceX", 20, 2, 20, 1, 2.4),
    Sketcher.Constraint("DistanceX", 75, 1, 75, 2, 5.3),
    Sketcher.Constraint("DistanceX", 18, 2, 18, 1, 2.0),
    Sketcher.Constraint("DistanceX", 22, 2, 22, 1, 0.6),
    Sketcher.Constraint("DistanceX", 53, 1, 53, 2, 21.3666),
    Sketcher.Constraint("DistanceY", 1, 2, 1, 1, 15.8333),
    Sketcher.Constraint("DistanceY", -1, 1, 8, 2, 16.0),
    Sketcher.Constraint("DistanceY", 50, 2, -1, 1, 26.0),
    Sketcher.Constraint("DistanceX", -1, 1, 76, 3, 21.3667),
    Sketcher.Constraint("DistanceY", -1, 1, 76, 3, 14.5),
    Sketcher.Constraint("DistanceY", -1, 1, 0, 2, 18.5),
    Sketcher.Constraint("DistanceY", 16, 2, -1, 1, 2.6),
    Sketcher.Constraint("DistanceX", 9, 2, 9, 1, 7.283),
    Sketcher.Constraint("DistanceX", -1, 1, 8, 2, 31.2907),
    Sketcher.Constraint("DistanceX", -1, 1, 78, 2, 18.7077),
])
pocket1 = body.newObject("PartDesign::Pocket", "Pocket")
pocket1.Profile = sketch2
pocket1.Type = "ThroughAll"

doc.recompute()
